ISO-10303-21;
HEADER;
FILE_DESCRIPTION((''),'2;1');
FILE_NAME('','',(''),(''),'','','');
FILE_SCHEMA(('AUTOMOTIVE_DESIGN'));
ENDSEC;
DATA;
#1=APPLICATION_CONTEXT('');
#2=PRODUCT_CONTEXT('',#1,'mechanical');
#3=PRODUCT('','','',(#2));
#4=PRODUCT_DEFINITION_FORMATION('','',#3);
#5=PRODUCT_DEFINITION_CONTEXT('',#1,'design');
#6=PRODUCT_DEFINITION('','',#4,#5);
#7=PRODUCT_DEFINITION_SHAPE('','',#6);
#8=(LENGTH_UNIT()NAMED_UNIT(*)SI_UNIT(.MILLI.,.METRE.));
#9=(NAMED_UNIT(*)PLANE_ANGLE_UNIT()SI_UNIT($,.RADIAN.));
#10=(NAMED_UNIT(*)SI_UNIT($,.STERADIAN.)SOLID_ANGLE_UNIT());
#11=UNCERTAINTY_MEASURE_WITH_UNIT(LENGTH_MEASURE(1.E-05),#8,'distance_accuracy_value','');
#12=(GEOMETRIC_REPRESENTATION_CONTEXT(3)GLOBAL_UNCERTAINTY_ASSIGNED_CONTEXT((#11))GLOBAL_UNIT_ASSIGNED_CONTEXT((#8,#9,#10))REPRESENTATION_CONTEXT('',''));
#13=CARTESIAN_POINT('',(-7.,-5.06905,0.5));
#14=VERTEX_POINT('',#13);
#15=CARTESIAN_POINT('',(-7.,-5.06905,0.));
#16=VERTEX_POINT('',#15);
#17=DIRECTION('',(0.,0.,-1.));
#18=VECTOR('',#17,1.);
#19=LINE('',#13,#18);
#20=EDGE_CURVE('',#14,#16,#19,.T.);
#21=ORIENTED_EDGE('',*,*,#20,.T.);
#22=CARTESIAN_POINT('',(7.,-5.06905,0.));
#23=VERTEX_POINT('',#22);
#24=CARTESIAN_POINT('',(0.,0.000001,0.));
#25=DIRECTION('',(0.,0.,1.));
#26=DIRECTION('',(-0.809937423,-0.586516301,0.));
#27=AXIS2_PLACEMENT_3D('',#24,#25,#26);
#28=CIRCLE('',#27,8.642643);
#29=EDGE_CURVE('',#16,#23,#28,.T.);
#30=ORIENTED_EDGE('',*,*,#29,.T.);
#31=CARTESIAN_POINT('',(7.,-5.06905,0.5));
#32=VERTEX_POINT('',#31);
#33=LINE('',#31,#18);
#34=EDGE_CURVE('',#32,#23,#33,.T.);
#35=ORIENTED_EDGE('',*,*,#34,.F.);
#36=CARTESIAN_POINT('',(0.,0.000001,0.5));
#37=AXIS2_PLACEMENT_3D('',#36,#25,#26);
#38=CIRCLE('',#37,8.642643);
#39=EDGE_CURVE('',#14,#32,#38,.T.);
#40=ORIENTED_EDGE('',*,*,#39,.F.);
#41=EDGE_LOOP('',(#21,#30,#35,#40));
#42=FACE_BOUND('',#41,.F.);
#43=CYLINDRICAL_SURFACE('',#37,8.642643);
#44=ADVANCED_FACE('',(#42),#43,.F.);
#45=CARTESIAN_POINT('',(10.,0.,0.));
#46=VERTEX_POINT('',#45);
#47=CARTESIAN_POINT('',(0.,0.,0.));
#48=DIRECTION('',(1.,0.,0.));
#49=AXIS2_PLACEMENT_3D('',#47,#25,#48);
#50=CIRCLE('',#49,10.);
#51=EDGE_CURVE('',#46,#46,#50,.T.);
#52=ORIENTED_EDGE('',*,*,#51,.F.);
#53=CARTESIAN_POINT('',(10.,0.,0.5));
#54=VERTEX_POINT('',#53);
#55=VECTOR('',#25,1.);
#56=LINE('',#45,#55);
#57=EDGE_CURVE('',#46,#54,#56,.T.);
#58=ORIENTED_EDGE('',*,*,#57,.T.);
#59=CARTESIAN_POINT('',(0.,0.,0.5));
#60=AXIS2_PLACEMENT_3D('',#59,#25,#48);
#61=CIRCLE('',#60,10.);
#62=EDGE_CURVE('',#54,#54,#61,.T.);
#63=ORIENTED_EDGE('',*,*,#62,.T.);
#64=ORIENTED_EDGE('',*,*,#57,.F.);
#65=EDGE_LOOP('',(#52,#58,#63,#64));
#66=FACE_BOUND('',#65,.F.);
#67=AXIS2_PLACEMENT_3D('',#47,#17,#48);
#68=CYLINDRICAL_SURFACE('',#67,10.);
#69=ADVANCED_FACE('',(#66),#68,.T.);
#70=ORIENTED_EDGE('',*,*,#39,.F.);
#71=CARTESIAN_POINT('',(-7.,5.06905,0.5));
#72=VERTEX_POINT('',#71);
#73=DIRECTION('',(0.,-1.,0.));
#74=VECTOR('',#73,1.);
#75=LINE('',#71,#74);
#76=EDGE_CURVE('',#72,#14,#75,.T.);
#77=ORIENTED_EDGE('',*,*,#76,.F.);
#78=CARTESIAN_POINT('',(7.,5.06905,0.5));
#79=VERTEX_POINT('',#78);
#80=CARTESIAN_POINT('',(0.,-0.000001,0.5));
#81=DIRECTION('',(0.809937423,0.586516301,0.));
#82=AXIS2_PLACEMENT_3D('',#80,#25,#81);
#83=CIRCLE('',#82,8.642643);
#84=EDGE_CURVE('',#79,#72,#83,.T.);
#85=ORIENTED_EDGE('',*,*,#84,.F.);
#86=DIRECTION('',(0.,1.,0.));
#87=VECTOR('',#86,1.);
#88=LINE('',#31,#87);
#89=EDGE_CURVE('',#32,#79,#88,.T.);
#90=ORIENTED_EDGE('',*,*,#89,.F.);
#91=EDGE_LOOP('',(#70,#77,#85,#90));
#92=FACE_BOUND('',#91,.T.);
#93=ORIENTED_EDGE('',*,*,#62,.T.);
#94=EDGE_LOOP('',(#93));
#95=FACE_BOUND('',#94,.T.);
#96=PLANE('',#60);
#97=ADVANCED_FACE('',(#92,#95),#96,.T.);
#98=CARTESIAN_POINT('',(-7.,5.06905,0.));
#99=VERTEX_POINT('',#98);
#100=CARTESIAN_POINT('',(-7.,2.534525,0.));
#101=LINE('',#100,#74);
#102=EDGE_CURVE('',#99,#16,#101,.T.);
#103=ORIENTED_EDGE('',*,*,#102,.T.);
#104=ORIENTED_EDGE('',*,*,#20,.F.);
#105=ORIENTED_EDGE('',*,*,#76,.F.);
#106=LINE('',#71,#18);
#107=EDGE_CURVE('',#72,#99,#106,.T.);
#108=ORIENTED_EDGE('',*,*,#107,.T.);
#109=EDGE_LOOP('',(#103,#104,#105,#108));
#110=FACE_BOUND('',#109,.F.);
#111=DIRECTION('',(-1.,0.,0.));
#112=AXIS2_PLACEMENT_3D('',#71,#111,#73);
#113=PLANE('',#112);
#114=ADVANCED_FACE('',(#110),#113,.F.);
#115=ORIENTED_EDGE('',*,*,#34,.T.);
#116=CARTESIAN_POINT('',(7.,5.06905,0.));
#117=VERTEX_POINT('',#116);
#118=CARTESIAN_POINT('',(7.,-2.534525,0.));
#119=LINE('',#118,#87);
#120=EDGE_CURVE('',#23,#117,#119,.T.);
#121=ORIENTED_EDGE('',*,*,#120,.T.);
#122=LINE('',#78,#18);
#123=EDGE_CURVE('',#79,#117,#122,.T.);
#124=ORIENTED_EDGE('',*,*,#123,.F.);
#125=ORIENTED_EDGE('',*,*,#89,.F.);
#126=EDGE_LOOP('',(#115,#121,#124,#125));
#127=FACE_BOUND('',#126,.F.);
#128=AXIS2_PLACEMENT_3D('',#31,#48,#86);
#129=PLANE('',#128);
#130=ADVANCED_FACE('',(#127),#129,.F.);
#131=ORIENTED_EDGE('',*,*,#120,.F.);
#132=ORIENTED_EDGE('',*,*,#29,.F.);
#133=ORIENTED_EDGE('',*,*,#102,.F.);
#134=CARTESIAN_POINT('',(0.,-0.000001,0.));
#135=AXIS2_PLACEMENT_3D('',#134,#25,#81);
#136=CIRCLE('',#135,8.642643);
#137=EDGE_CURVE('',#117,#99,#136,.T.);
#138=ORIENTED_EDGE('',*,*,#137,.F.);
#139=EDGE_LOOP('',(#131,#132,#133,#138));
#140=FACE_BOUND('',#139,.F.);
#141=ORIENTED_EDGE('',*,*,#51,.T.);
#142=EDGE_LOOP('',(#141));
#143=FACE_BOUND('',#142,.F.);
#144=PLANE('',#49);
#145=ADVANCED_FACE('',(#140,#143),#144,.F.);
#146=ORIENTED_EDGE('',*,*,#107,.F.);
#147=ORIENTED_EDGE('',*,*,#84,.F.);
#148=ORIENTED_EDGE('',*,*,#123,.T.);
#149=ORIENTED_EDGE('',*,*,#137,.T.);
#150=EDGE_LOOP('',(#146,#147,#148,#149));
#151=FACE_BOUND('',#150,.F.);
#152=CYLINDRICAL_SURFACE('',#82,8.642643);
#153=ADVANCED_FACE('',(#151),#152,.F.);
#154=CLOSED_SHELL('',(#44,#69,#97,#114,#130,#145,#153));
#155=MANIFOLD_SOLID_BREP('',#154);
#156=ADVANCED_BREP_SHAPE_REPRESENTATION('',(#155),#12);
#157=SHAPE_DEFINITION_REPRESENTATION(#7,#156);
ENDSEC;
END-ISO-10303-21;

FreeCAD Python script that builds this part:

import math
import FreeCAD as App
import Part
import Sketcher

V = App.Vector

doc = App.newDocument("Part")
body = doc.addObject("PartDesign::Body", "Body")

# Sketch on XY plane
sketch1 = body.newObject("Sketcher::SketchObject", "Sketch")
sketch1.AttachmentSupport = (doc.getObject("XY_Plane"), [""])
sketch1.MapMode = "FlatFace"
sketch1.addGeometry(Part.Circle(V(0, 0, 0), V(0, 0, 1), 10), False)
sketch1.addConstraint([
    Sketcher.Constraint("Coincident", 0, 3, -1, 1),
    Sketcher.Constraint("Diameter", 0, 20.0),
])
pad1 = body.newObject("PartDesign::Pad", "Pad")
pad1.Profile = sketch1
pad1.Length = 0.5

# Sketch on XY plane
sketch2 = body.newObject("Sketcher::SketchObject", "Sketch001")
sketch2.AttachmentSupport = (doc.getObject("XY_Plane"), [""])
sketch2.MapMode = "FlatFace"
sketch2.AttachmentOffset = App.Placement(V(0, 0, 0.5), App.Rotation())
sketch2.addGeometry([
    Part.LineSegment(V(7, -5, 0), V(7, 5, 0)),
    Part.ArcOfCircle(Part.Circle(V(0, 0, 0), V(0, 0, 1), 9), math.radians(36), math.radians(144)),
    Part.LineSegment(V(-7, 5, 0), V(-7, -5, 0)),
    Part.ArcOfCircle(Part.Circle(V(0, 0, 0), V(0, 0, 1), 9), math.radians(-144), math.radians(-36)),
], False)
sketch2.addConstraint([
    Sketcher.Constraint("Coincident", 0, 2, 1, 1),
    Sketcher.Constraint("Coincident", 1, 2, 2, 1),
    Sketcher.Constraint("Coincident", 2, 2, 3, 1),
    Sketcher.Constraint("Coincident", 3, 2, 0, 1),
    Sketcher.Constraint("Vertical", 0),
    Sketcher.Constraint("Vertical", 2),
    Sketcher.Constraint("Coincident", 1, 3, -1, 1),
    Sketcher.Constraint("Coincident", 3, 3, -1, 1),
    Sketcher.Constraint("Equal", 1, 3),
    Sketcher.Constraint("Horizontal", 0, 2, 1, 2),
    Sketcher.Constraint("DistanceX", -1, 1, 0, 2, 7.0),
    Sketcher.Constraint("DistanceY", 0, 1, 0, 2, 10.1381),
])
pocket1 = body.newObject("PartDesign::Pocket", "Pocket")
pocket1.Profile = sketch2
pocket1.Length = 25

doc.recompute()
